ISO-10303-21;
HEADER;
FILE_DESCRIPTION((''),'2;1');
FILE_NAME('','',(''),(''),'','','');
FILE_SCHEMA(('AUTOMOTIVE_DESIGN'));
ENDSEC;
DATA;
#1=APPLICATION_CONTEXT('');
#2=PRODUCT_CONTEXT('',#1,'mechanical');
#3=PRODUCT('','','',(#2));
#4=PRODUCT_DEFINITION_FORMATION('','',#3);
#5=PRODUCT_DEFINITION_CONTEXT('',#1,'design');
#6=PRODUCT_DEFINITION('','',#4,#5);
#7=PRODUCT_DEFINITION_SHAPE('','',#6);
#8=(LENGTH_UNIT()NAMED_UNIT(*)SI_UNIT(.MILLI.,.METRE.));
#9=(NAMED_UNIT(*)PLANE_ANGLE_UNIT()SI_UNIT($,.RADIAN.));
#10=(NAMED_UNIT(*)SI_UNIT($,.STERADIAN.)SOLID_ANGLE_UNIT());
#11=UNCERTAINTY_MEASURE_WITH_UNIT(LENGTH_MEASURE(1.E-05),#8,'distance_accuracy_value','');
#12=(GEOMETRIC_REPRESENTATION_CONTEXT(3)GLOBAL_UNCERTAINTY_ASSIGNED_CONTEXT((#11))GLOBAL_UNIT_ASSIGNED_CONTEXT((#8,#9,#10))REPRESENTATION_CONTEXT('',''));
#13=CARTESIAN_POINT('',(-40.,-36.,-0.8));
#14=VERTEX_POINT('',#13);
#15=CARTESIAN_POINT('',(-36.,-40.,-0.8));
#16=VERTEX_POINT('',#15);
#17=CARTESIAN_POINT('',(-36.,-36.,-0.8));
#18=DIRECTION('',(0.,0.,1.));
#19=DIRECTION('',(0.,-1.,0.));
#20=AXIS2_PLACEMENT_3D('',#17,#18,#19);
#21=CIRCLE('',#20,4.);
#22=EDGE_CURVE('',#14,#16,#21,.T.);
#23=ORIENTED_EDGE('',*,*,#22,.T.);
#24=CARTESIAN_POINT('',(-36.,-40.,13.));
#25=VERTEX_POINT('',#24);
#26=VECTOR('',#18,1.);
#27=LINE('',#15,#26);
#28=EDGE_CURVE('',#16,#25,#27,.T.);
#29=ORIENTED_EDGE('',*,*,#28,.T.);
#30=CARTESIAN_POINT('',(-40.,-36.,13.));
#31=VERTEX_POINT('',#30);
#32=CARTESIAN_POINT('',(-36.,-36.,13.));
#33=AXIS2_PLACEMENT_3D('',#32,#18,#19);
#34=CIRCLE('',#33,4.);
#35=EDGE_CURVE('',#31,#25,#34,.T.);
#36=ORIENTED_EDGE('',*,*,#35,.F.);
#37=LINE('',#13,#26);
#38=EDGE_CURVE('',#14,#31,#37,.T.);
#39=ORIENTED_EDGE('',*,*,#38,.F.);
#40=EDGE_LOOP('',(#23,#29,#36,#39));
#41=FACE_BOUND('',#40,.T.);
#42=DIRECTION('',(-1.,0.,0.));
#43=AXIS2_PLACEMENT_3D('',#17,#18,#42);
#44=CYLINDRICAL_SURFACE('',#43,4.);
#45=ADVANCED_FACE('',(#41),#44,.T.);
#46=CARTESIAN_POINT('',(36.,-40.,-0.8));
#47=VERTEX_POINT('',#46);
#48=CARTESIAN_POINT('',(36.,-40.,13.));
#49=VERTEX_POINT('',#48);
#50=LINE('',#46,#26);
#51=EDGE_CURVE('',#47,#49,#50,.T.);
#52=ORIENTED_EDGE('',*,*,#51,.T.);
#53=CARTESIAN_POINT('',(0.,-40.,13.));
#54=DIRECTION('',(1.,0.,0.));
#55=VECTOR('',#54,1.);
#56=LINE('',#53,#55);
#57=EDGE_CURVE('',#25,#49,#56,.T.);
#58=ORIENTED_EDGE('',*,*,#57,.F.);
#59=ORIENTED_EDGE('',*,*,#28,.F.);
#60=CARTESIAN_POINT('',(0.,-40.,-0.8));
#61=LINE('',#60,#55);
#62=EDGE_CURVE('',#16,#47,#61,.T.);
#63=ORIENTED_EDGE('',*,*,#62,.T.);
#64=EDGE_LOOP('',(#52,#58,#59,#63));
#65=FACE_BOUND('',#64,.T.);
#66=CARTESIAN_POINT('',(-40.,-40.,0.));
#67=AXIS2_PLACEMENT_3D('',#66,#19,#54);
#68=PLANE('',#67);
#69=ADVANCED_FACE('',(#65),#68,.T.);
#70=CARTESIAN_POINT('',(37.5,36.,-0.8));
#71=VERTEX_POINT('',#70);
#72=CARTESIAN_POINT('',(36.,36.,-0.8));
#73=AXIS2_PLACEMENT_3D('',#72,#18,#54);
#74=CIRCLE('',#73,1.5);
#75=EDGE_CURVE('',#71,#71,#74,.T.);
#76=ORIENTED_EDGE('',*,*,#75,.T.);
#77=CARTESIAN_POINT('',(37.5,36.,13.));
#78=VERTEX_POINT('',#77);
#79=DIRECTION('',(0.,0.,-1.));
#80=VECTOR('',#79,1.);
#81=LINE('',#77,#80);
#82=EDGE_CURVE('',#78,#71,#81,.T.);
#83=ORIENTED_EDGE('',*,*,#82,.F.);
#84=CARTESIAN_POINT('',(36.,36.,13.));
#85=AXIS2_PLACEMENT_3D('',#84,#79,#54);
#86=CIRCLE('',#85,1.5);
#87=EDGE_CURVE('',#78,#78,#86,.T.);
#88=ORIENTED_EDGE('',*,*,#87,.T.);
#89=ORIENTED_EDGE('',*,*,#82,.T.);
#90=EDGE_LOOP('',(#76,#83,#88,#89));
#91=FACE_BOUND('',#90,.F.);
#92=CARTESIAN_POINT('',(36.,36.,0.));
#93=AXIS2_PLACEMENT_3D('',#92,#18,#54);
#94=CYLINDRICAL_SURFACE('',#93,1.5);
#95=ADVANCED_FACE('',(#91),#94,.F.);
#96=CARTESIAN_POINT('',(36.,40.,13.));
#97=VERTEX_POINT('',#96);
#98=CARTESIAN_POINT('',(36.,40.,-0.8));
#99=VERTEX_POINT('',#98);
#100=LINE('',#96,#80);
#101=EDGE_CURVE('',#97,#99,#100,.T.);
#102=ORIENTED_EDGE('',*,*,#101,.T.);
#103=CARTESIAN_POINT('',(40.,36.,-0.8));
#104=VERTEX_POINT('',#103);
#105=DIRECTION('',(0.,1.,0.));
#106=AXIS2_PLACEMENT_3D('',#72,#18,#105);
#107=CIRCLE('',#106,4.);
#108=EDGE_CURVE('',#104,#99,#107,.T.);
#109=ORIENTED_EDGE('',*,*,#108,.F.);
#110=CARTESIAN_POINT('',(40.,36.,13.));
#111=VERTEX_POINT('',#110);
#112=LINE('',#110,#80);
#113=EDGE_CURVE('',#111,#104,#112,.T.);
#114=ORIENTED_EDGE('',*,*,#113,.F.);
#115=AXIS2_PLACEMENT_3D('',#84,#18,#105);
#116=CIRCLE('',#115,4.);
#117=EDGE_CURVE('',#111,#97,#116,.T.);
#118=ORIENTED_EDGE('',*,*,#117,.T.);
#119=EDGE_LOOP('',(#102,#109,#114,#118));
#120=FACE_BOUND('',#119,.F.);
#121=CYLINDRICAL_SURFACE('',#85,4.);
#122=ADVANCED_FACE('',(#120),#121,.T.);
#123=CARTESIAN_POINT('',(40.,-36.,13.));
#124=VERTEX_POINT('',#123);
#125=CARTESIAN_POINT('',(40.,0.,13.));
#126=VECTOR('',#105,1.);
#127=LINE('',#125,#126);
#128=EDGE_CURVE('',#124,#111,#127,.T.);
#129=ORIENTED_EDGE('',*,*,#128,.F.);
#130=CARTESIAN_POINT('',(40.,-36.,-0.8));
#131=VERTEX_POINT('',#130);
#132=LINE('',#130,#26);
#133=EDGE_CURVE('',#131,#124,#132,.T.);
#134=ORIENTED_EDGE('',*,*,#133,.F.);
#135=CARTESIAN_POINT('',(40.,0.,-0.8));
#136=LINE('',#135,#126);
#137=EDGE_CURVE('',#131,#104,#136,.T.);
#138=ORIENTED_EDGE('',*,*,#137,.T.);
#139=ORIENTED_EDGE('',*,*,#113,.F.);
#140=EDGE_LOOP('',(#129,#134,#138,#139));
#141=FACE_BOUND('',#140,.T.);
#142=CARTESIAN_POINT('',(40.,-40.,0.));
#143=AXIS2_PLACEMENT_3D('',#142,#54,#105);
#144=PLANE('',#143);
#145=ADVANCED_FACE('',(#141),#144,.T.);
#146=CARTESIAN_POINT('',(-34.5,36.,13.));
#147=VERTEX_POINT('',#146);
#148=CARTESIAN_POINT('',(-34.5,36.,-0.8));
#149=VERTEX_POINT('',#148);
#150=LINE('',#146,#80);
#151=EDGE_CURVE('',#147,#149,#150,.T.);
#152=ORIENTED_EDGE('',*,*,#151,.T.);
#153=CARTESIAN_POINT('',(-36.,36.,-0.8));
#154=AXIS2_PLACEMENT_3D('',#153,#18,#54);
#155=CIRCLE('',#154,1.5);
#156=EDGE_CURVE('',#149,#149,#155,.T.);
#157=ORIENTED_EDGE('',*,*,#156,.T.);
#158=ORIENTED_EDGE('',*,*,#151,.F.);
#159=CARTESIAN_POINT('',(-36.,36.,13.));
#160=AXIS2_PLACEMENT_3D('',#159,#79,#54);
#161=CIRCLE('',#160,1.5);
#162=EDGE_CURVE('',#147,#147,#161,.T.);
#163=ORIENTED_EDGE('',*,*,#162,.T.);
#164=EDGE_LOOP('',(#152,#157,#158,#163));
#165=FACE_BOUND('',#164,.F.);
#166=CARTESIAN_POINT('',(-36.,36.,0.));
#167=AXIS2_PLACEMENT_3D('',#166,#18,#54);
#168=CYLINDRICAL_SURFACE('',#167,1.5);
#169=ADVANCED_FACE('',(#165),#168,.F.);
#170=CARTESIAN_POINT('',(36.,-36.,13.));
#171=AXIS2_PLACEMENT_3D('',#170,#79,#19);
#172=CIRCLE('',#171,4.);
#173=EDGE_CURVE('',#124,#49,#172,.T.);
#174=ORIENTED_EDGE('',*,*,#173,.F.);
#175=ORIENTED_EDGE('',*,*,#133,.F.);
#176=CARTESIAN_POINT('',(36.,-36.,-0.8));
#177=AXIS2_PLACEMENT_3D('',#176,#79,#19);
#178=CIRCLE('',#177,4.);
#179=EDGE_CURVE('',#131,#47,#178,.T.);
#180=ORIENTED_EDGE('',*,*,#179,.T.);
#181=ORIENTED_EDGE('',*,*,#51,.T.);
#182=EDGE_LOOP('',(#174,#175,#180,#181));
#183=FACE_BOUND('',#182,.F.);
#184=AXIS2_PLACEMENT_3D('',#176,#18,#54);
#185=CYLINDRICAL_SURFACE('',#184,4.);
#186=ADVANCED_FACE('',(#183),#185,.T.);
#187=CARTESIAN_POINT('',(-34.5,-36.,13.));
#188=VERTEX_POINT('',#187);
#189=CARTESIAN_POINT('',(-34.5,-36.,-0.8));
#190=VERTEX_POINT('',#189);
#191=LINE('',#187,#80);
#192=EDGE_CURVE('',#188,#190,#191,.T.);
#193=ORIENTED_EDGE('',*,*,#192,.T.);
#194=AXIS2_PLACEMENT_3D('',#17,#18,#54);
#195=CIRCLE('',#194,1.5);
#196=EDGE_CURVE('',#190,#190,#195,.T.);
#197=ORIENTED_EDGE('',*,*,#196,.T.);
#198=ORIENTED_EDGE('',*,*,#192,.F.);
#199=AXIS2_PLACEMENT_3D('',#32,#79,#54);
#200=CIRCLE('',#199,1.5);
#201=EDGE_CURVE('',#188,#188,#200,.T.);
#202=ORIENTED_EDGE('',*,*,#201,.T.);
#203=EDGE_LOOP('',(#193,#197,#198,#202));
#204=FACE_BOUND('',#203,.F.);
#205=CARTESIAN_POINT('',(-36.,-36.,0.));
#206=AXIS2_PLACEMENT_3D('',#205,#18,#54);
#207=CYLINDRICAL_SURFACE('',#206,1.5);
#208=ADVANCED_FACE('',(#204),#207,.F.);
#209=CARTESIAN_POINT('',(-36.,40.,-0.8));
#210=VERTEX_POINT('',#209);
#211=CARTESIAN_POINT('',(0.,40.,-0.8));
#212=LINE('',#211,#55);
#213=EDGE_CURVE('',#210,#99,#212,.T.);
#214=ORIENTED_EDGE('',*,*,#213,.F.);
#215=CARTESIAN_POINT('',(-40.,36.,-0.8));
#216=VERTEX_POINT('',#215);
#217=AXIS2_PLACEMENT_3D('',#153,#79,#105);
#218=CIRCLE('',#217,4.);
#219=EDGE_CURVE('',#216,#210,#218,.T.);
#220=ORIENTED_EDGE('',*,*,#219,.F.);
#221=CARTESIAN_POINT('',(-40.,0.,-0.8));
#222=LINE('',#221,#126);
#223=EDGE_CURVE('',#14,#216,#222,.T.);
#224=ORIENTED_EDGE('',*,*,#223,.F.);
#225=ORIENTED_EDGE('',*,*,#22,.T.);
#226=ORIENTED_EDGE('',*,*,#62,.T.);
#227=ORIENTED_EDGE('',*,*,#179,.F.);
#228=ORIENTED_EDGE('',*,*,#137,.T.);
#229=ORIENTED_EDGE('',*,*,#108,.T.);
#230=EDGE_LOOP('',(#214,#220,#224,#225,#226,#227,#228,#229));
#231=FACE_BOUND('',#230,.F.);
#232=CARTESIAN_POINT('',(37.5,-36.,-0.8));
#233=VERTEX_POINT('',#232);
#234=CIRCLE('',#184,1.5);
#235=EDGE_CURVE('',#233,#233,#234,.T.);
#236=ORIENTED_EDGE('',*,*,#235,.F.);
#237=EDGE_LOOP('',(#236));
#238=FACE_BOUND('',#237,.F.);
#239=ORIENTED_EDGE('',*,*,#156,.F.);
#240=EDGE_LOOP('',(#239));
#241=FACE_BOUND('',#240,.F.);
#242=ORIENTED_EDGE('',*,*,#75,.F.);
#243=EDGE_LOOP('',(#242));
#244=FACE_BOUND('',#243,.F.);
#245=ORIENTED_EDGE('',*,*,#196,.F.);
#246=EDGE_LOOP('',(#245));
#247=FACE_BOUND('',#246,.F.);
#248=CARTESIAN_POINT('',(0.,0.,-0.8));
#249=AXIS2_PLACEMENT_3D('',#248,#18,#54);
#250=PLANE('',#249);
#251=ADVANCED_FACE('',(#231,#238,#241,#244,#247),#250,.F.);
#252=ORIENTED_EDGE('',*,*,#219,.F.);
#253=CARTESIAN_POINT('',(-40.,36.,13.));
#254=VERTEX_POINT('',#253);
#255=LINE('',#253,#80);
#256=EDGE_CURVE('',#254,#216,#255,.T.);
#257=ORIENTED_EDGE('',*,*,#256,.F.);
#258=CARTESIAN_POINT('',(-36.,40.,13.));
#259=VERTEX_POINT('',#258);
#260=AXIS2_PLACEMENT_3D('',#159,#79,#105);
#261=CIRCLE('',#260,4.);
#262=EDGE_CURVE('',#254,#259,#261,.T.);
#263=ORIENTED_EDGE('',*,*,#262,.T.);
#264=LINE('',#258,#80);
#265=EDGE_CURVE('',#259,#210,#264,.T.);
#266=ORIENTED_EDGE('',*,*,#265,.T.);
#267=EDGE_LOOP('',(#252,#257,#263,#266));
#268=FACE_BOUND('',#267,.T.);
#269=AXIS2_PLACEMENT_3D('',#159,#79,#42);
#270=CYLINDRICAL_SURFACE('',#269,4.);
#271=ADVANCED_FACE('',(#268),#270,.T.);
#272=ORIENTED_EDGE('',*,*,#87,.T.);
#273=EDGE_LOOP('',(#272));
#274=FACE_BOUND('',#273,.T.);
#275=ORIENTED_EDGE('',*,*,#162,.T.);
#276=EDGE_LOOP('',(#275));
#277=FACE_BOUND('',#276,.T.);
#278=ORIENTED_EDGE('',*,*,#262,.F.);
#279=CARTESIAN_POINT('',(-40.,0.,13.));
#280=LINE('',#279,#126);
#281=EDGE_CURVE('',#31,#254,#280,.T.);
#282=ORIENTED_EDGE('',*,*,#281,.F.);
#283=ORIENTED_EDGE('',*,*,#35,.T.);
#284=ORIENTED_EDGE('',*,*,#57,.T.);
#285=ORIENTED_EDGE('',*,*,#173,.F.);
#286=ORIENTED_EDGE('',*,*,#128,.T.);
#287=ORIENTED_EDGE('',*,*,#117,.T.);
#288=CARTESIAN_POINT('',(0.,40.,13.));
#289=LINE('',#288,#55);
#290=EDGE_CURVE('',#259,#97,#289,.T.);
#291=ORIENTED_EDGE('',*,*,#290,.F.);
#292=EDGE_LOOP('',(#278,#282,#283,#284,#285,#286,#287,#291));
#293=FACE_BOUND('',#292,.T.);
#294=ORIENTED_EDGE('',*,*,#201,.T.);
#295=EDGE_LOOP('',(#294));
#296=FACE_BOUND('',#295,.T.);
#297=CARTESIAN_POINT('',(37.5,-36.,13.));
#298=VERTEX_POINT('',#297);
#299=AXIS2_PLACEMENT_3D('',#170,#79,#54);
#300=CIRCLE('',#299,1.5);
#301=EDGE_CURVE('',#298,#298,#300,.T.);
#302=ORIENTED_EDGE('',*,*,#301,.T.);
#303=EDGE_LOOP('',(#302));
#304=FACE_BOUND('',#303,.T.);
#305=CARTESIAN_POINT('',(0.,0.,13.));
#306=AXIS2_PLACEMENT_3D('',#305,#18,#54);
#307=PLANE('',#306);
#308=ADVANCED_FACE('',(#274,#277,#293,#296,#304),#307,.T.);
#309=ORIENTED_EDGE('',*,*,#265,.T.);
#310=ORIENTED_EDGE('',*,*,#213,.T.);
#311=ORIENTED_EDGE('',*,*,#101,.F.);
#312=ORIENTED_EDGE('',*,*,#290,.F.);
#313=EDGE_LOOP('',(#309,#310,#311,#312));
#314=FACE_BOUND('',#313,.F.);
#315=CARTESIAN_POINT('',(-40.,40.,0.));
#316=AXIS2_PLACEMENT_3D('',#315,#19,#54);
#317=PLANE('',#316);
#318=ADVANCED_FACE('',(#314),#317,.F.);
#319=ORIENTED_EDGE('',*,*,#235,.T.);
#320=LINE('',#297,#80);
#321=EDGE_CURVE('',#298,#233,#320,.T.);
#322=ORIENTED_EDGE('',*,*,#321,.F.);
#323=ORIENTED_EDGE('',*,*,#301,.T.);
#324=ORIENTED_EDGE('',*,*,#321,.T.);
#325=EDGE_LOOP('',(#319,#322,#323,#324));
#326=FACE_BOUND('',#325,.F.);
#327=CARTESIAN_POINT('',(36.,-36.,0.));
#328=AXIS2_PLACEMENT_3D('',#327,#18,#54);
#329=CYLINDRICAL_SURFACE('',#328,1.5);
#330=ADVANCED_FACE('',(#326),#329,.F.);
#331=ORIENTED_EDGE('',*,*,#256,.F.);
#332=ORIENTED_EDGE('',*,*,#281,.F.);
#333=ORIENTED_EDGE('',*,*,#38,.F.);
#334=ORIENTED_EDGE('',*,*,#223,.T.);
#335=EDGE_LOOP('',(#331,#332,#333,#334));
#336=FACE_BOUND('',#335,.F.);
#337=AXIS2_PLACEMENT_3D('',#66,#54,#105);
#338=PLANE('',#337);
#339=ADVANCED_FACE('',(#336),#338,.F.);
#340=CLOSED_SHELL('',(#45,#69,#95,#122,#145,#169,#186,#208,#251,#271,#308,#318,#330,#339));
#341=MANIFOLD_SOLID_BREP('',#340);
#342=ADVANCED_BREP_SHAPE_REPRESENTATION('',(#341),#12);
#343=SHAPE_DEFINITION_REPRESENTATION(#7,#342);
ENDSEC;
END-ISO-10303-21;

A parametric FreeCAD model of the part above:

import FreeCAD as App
import Part
import Sketcher
from FreeCAD import Vector
Q = App.Units.Quantity


def edges_at(feature, points):
    """Names of the edges that pass closest to the given points."""
    edges = feature.Shape.Edges
    near = lambda p: min(range(len(edges)), key=lambda i: edges[i].distToShape(Part.Vertex(*p))[0])
    return sorted({f"Edge{near(p) + 1}" for p in points})

doc = App.newDocument("Part")
params = doc.addObject("Spreadsheet::Sheet", "Params")
for row, (alias, value) in enumerate([
    ("sketch1_width", "80 mm"),
    ("pad1_length", "13 mm"),
    ("pad1_length2", "0.8 mm"),
    ("fillet_radius", "4 mm"),
    ("sketch2_diameter", "3 mm"),
], start=1):
    params.set(f"A{row}", alias)
    params.set(f"B{row}", "=" + value)
    params.setAlias(f"B{row}", alias)

body = doc.addObject("PartDesign::Body", "Body")

# Sketch on XY plane
sketch1 = doc.addObject("Sketcher::SketchObject", "Sketch")
body.addObject(sketch1)
sketch1.AttachmentSupport = (doc.XY_Plane, [""])
sketch1.MapMode = "FlatFace"
sketch1.addGeometry(Part.LineSegment(Vector(-40, 40, 0), Vector(-40, -40, 0)), False)
sketch1.addGeometry(Part.LineSegment(Vector(-40, -40, 0), Vector(40, -40, 0)), False)
sketch1.addGeometry(Part.LineSegment(Vector(40, -40, 0), Vector(40, 40, 0)), False)
sketch1.addGeometry(Part.LineSegment(Vector(40, 40, 0), Vector(-40, 40, 0)), False)
sketch1.addConstraint(Sketcher.Constraint("Coincident", 0, 2, 1, 1))
sketch1.addConstraint(Sketcher.Constraint("Coincident", 1, 2, 2, 1))
sketch1.addConstraint(Sketcher.Constraint("Coincident", 2, 2, 3, 1))
sketch1.addConstraint(Sketcher.Constraint("Coincident", 3, 2, 0, 1))
sketch1.addConstraint(Sketcher.Constraint("Vertical", 0))
sketch1.addConstraint(Sketcher.Constraint("Horizontal", 1))
sketch1.addConstraint(Sketcher.Constraint("Vertical", 2))
sketch1.addConstraint(Sketcher.Constraint("Horizontal", 3))
sketch1.addConstraint(Sketcher.Constraint("Symmetric", 0, 2, 2, 2, -1, 1))
sketch1.addConstraint(Sketcher.Constraint("Equal", 3, 0))
sketch1.addConstraint(Sketcher.Constraint("DistanceX", 1, 1, 1, 2, Q("80 mm")))
sketch1.setExpression("Constraints[10]", "Params.sketch1_width")
pad1 = doc.addObject("PartDesign::Pad", "Pad")
body.addObject(pad1)
pad1.Profile = sketch1
pad1.Type = "TwoLengths"
pad1.setExpression("Length", "Params.pad1_length")
pad1.setExpression("Length2", "Params.pad1_length2")
doc.recompute()

fillet = doc.addObject("PartDesign::Fillet", "Fillet")
body.addObject(fillet)
fillet.Base = (pad1, edges_at(pad1, [
    (-40, 40, 6.1),
    (-40, -40, 6.1),
    (40, -40, 6.1),
    (40, 40, 6.1),
]))
fillet.setExpression("Radius", "Params.fillet_radius")

# Sketch on XY plane
sketch2 = doc.addObject("Sketcher::SketchObject", "Sketch001")
body.addObject(sketch2)
sketch2.AttachmentSupport = (doc.XY_Plane, [""])
sketch2.MapMode = "FlatFace"
sketch2.addGeometry(Part.Circle(Vector(-36, 36, 0), Vector(0, 0, 1), 1.5), False)
sketch2.addGeometry(Part.Circle(Vector(36, 36, 0), Vector(0, 0, 1), 1.5), False)
sketch2.addGeometry(Part.Circle(Vector(36, -36, 0), Vector(0, 0, 1), 1.5), False)
sketch2.addGeometry(Part.Circle(Vector(-36, -36, 0), Vector(0, 0, 1), 1.5), False)
sketch2.addConstraint(Sketcher.Constraint("Equal", 0, 1))
sketch2.addConstraint(Sketcher.Constraint("Equal", 1, 2))
sketch2.addConstraint(Sketcher.Constraint("Equal", 2, 3))
sketch2.addConstraint(Sketcher.Constraint("Symmetric", 0, 3, 2, 3, -1, 1))
sketch2.addConstraint(Sketcher.Constraint("Symmetric", 1, 3, 3, 3, -1, 1))
sketch2.addConstraint(Sketcher.Constraint("Symmetric", 0, 3, 1, 3, -2))
sketch2.addConstraint(Sketcher.Constraint("Diameter", 0, Q("3 mm")))
sketch2.addConstraint(Sketcher.Constraint("DistanceX", 0, 3, -1, 1, Q("36 mm")))
sketch2.addConstraint(Sketcher.Constraint("DistanceY", -1, 1, 0, 3, Q("36 mm")))
sketch2.setExpression("Constraints[6]", "Params.sketch2_diameter")
pocket1 = doc.addObject("PartDesign::Pocket", "Pocket")
body.addObject(pocket1)
pocket1.Profile = sketch2
pocket1.Type = "ThroughAll"
pocket1.Midplane = True

doc.recompute()
